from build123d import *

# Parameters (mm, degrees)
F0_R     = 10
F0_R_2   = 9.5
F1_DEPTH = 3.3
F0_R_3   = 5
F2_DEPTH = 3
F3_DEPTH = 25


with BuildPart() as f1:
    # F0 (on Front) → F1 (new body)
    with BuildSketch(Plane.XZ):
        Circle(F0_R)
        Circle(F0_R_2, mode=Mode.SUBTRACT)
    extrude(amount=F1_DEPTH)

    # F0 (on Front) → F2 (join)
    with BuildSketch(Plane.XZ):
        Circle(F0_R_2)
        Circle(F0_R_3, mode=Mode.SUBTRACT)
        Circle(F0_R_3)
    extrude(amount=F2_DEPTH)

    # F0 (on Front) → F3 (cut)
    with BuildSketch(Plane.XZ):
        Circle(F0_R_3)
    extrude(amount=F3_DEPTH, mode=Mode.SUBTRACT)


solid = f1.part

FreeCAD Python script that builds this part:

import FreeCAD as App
import Part
import Sketcher

V = App.Vector
Q = App.Units.Quantity

doc = App.newDocument("Part")
params = doc.addObject("Spreadsheet::Sheet", "Params")
for row, (alias, value) in enumerate([
    ("sketch1_diameter", "20 mm"),
    ("sketch1_diameter2", "19 mm"),
    ("pad1_length", "3.3 mm"),
    ("sketch2_diameter", "19 mm"),
    ("pad2_length", "3 mm"),
    ("sketch3_diameter", "10 mm"),
    ("pocket1_length", "25 mm"),
], start=1):
    params.set(f"A{row}", alias)
    params.set(f"B{row}", "=" + value)
    params.setAlias(f"B{row}", alias)

body = doc.addObject("PartDesign::Body", "Body")

# Sketch on XZ plane
sketch1 = doc.addObject("Sketcher::SketchObject", "Sketch")
body.addObject(sketch1)
sketch1.AttachmentSupport = (doc.XZ_Plane, [""])
sketch1.MapMode = "FlatFace"
sketch1.addGeometry([
    Part.Circle(V(0, 0, 0), V(0, 0, 1), 10),
    Part.Circle(V(0, 0, 0), V(0, 0, 1), 9.5),
], False)
sketch1.addConstraint([
    Sketcher.Constraint("Coincident", 0, 3, -1, 1),
    Sketcher.Constraint("Coincident", 1, 3, -1, 1),
    Sketcher.Constraint("Diameter", 0, Q("20 mm")),
    Sketcher.Constraint("Diameter", 1, Q("19 mm")),
])
sketch1.setExpression("Constraints[2]", "Params.sketch1_diameter")
sketch1.setExpression("Constraints[3]", "Params.sketch1_diameter2")
pad1 = doc.addObject("PartDesign::Pad", "Pad")
body.addObject(pad1)
pad1.Profile = sketch1
pad1.setExpression("Length", "Params.pad1_length")

# Sketch on XZ plane
sketch2 = doc.addObject("Sketcher::SketchObject", "Sketch001")
body.addObject(sketch2)
sketch2.AttachmentSupport = (doc.XZ_Plane, [""])
sketch2.MapMode = "FlatFace"
sketch2.addGeometry(Part.Circle(V(0, 0, 0), V(0, 0, 1), 9.5), False)
sketch2.addConstraint([
    Sketcher.Constraint("Coincident", 0, 3, -1, 1),
    Sketcher.Constraint("Diameter", 0, Q("19 mm")),
])
sketch2.setExpression("Constraints[1]", "Params.sketch2_diameter")
pad2 = doc.addObject("PartDesign::Pad", "Pad001")
body.addObject(pad2)
pad2.Profile = sketch2
pad2.setExpression("Length", "Params.pad2_length")

# Sketch on XZ plane
sketch3 = doc.addObject("Sketcher::SketchObject", "Sketch002")
body.addObject(sketch3)
sketch3.AttachmentSupport = (doc.XZ_Plane, [""])
sketch3.MapMode = "FlatFace"
sketch3.addGeometry(Part.Circle(V(0, 0, 0), V(0, 0, 1), 5), False)
sketch3.addConstraint([
    Sketcher.Constraint("Coincident", 0, 3, -1, 1),
    Sketcher.Constraint("Diameter", 0, Q("10 mm")),
])
sketch3.setExpression("Constraints[1]", "Params.sketch3_diameter")
pocket1 = doc.addObject("PartDesign::Pocket", "Pocket")
body.addObject(pocket1)
pocket1.Profile = sketch3
pocket1.setExpression("Length", "Params.pocket1_length")
pocket1.Reversed = True

doc.recompute()
